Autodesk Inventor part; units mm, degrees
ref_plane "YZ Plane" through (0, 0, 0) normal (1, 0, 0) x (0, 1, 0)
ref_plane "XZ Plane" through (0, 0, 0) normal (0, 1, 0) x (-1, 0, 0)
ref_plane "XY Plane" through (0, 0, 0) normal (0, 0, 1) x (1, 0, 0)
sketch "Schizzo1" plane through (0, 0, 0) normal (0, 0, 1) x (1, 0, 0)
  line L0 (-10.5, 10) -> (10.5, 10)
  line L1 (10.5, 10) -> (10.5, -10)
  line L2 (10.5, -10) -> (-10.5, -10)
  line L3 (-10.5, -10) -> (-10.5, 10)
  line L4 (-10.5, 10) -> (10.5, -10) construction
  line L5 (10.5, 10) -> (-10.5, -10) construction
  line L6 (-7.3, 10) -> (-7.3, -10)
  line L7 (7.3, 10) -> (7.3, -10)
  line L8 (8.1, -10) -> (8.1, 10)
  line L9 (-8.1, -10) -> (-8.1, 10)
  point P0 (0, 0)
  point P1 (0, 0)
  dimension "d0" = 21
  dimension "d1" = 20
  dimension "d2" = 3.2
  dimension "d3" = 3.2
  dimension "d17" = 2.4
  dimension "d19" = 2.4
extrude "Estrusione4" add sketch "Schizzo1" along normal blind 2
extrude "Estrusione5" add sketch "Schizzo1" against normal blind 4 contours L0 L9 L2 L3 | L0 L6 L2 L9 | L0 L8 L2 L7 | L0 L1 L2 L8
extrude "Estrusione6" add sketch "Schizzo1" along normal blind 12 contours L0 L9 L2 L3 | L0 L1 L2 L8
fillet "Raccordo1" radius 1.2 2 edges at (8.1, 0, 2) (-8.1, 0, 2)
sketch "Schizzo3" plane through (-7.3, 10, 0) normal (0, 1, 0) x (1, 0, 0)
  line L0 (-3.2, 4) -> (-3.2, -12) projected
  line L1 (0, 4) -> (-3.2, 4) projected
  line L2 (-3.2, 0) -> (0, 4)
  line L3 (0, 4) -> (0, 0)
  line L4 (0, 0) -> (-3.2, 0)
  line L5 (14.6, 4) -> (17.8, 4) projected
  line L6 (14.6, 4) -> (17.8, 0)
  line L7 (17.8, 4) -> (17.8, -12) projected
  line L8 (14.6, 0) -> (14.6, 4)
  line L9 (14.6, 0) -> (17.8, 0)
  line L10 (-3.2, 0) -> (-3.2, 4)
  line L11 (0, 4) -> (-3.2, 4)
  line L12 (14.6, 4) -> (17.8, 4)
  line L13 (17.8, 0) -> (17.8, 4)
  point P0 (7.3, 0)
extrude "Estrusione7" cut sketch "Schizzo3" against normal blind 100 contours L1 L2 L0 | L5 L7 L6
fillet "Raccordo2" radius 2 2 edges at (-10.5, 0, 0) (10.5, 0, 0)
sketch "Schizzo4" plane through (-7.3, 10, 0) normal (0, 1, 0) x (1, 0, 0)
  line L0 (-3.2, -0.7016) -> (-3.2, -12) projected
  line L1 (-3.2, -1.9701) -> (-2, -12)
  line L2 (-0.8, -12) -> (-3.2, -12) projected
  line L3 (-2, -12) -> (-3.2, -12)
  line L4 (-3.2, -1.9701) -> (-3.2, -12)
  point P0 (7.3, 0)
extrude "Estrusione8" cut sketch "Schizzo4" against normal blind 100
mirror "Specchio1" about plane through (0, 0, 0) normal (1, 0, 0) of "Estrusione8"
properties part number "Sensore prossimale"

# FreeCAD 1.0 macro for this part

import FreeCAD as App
import Part
import Sketcher


def edges_at(feature, points):
    """Names of the edges that pass closest to the given points."""
    edges = feature.Shape.Edges
    near = lambda p: min(range(len(edges)), key=lambda i: edges[i].distToShape(Part.Vertex(*p))[0])
    return sorted({f"Edge{near(p) + 1}" for p in points})

doc = App.newDocument("Part")
body = doc.addObject("PartDesign::Body", "Body")

# Sketch on XY plane
sketch1 = body.newObject("Sketcher::SketchObject", "Sketch")
sketch1.AttachmentSupport = (doc.getObject("XY_Plane"), [""])
sketch1.MapMode = "FlatFace"
sketch1.addGeometry([
    Part.LineSegment(App.Vector(-10.5, 10, 0), App.Vector(-10.5, -10, 0)),
    Part.LineSegment(App.Vector(-10.5, -10, 0), App.Vector(10.5, -10, 0)),
    Part.LineSegment(App.Vector(10.5, -10, 0), App.Vector(10.5, 10, 0)),
    Part.LineSegment(App.Vector(10.5, 10, 0), App.Vector(-10.5, 10, 0)),
], False)
sketch1.addConstraint([
    Sketcher.Constraint("Coincident", 0, 2, 1, 1),
    Sketcher.Constraint("Coincident", 1, 2, 2, 1),
    Sketcher.Constraint("Coincident", 2, 2, 3, 1),
    Sketcher.Constraint("Coincident", 3, 2, 0, 1),
    Sketcher.Constraint("Vertical", 0),
    Sketcher.Constraint("Horizontal", 1),
    Sketcher.Constraint("Vertical", 2),
    Sketcher.Constraint("Horizontal", 3),
    Sketcher.Constraint("Symmetric", 0, 2, 2, 2, -1, 1),
    Sketcher.Constraint("DistanceX", 1, 1, 1, 2, 21.0),
    Sketcher.Constraint("DistanceY", 0, 2, 0, 1, 20.0),
])
pad1 = body.newObject("PartDesign::Pad", "Pad")
pad1.Profile = sketch1
pad1.Length = 2

# Sketch on XY plane
sketch2 = body.newObject("Sketcher::SketchObject", "Sketch001")
sketch2.AttachmentSupport = (doc.getObject("XY_Plane"), [""])
sketch2.MapMode = "FlatFace"
sketch2.addGeometry([
    Part.LineSegment(App.Vector(-10.5, 10, 0), App.Vector(-10.5, -10, 0)),  # 0
    Part.LineSegment(App.Vector(-10.5, -10, 0), App.Vector(-7.3, -10, 0)),  # 1
    Part.LineSegment(App.Vector(-7.3, -10, 0), App.Vector(-7.3, 10, 0)),  # 2
    Part.LineSegment(App.Vector(-7.3, 10, 0), App.Vector(-10.5, 10, 0)),  # 3
    Part.LineSegment(App.Vector(7.3, 10, 0), App.Vector(7.3, -10, 0)),  # 4
    Part.LineSegment(App.Vector(7.3, -10, 0), App.Vector(10.5, -10, 0)),  # 5
    Part.LineSegment(App.Vector(10.5, -10, 0), App.Vector(10.5, 10, 0)),  # 6
    Part.LineSegment(App.Vector(10.5, 10, 0), App.Vector(7.3, 10, 0)),  # 7
], False)
sketch2.addConstraint([
    Sketcher.Constraint("Coincident", 0, 2, 1, 1),
    Sketcher.Constraint("Coincident", 1, 2, 2, 1),
    Sketcher.Constraint("Coincident", 2, 2, 3, 1),
    Sketcher.Constraint("Coincident", 3, 2, 0, 1),
    Sketcher.Constraint("Coincident", 4, 2, 5, 1),
    Sketcher.Constraint("Coincident", 5, 2, 6, 1),
    Sketcher.Constraint("Coincident", 6, 2, 7, 1),
    Sketcher.Constraint("Coincident", 7, 2, 4, 1),
    Sketcher.Constraint("Vertical", 0),
    Sketcher.Constraint("Horizontal", 1),
    Sketcher.Constraint("Vertical", 2),
    Sketcher.Constraint("Horizontal", 3),
    Sketcher.Constraint("Vertical", 4),
    Sketcher.Constraint("Horizontal", 5),
    Sketcher.Constraint("Vertical", 6),
    Sketcher.Constraint("Horizontal", 7),
    Sketcher.Constraint("Symmetric", 2, 2, 4, 2, -1, 1),
    Sketcher.Constraint("Symmetric", 0, 2, 6, 2, -1, 1),
    Sketcher.Constraint("Horizontal", 1, 2, 4, 2),
    Sketcher.Constraint("DistanceY", 0, 2, 0, 1, 20.0),
    Sketcher.Constraint("DistanceX", 1, 1, 1, 2, 3.2),
    Sketcher.Constraint("DistanceX", 0, 2, 5, 2, 21.0),
])
pad2 = body.newObject("PartDesign::Pad", "Pad001")
pad2.Profile = sketch2
pad2.Length = 4
pad2.Reversed = True

# Sketch on XY plane
sketch3 = body.newObject("Sketcher::SketchObject", "Sketch002")
sketch3.AttachmentSupport = (doc.getObject("XY_Plane"), [""])
sketch3.MapMode = "FlatFace"
sketch3.addGeometry([
    Part.LineSegment(App.Vector(-8.1, 10, 0), App.Vector(-10.5, 10, 0)),  # 0
    Part.LineSegment(App.Vector(-10.5, 10, 0), App.Vector(-10.5, -10, 0)),  # 1
    Part.LineSegment(App.Vector(-10.5, -10, 0), App.Vector(-8.1, -10, 0)),  # 2
    Part.LineSegment(App.Vector(-8.1, -10, 0), App.Vector(-8.1, 10, 0)),  # 3
    Part.LineSegment(App.Vector(10.5, 10, 0), App.Vector(8.1, 10, 0)),  # 4
    Part.LineSegment(App.Vector(8.1, 10, 0), App.Vector(8.1, -10, 0)),  # 5
    Part.LineSegment(App.Vector(8.1, -10, 0), App.Vector(10.5, -10, 0)),  # 6
    Part.LineSegment(App.Vector(10.5, -10, 0), App.Vector(10.5, 10, 0)),  # 7
], False)
sketch3.addConstraint([
    Sketcher.Constraint("Coincident", 0, 2, 1, 1),
    Sketcher.Constraint("Coincident", 1, 2, 2, 1),
    Sketcher.Constraint("Coincident", 2, 2, 3, 1),
    Sketcher.Constraint("Coincident", 3, 2, 0, 1),
    Sketcher.Constraint("Coincident", 4, 2, 5, 1),
    Sketcher.Constraint("Coincident", 5, 2, 6, 1),
    Sketcher.Constraint("Coincident", 6, 2, 7, 1),
    Sketcher.Constraint("Coincident", 7, 2, 4, 1),
    Sketcher.Constraint("Horizontal", 0),
    Sketcher.Constraint("Vertical", 1),
    Sketcher.Constraint("Horizontal", 2),
    Sketcher.Constraint("Vertical", 3),
    Sketcher.Constraint("Horizontal", 4),
    Sketcher.Constraint("Vertical", 5),
    Sketcher.Constraint("Horizontal", 6),
    Sketcher.Constraint("Vertical", 7),
    Sketcher.Constraint("Symmetric", 2, 2, 4, 2, -1, 1),
    Sketcher.Constraint("Symmetric", 0, 2, 6, 2, -1, 1),
    Sketcher.Constraint("Horizontal", 3, 2, 4, 2),
    Sketcher.Constraint("DistanceY", 1, 2, 1, 1, 20.0),
    Sketcher.Constraint("DistanceX", 0, 2, 0, 1, 2.4),
    Sketcher.Constraint("DistanceX", 1, 2, 6, 2, 21.0),
])
pad3 = body.newObject("PartDesign::Pad", "Pad002")
pad3.Profile = sketch3
pad3.Length = 12
doc.recompute()

fillet = body.newObject("PartDesign::Fillet", "Fillet")
fillet.Base = (pad3, edges_at(pad3, [(8.1, 0, 2), (-8.1, 0, 2)]))
fillet.Radius = 1.2

# Sketch on XZ plane
sketch4 = body.newObject("Sketcher::SketchObject", "Sketch003")
sketch4.AttachmentSupport = (doc.getObject("XZ_Plane"), [""])
sketch4.MapMode = "FlatFace"
sketch4.AttachmentOffset = App.Placement(App.Vector(0, 0, -10), App.Rotation())
sketch4.addGeometry([
    Part.LineSegment(App.Vector(-7.3, -4, 0), App.Vector(-10.5, -4, 0)),  # 0
    Part.LineSegment(App.Vector(-10.5, -4, 0), App.Vector(-10.5, 0, 0)),  # 1
    Part.LineSegment(App.Vector(-10.5, 0, 0), App.Vector(-7.3, -4, 0)),  # 2
    Part.LineSegment(App.Vector(10.5, -4, 0), App.Vector(7.3, -4, 0)),  # 3
    Part.LineSegment(App.Vector(7.3, -4, 0), App.Vector(10.5, 0, 0)),  # 4
    Part.LineSegment(App.Vector(10.5, 0, 0), App.Vector(10.5, -4, 0)),  # 5
], False)
sketch4.addConstraint([
    Sketcher.Constraint("Coincident", 0, 2, 1, 1),
    Sketcher.Constraint("Coincident", 1, 2, 2, 1),
    Sketcher.Constraint("Coincident", 2, 2, 0, 1),
    Sketcher.Constraint("Coincident", 3, 2, 4, 1),
    Sketcher.Constraint("Coincident", 4, 2, 5, 1),
    Sketcher.Constraint("Coincident", 5, 2, 3, 1),
    Sketcher.Constraint("Horizontal", 0),
    Sketcher.Constraint("Vertical", 1),
    Sketcher.Constraint("Horizontal", 3),
    Sketcher.Constraint("Vertical", 5),
    Sketcher.Constraint("Symmetric", 1, 2, 4, 2, -1, 1),
    Sketcher.Constraint("Symmetric", 2, 2, 3, 2, -2),
    Sketcher.Constraint("PointOnObject", 1, 2, -1),
    Sketcher.Constraint("DistanceY", 1, 1, 1, 2, 4.0),
    Sketcher.Constraint("DistanceX", 0, 2, 0, 1, 3.2),
    Sketcher.Constraint("DistanceX", 1, 2, 4, 2, 21.0),
])
pocket1 = body.newObject("PartDesign::Pocket", "Pocket")
pocket1.Profile = sketch4
pocket1.Length = 100
pocket1.Reversed = True
doc.recompute()

fillet2 = body.newObject("PartDesign::Fillet", "Fillet001")
fillet2.Base = (pocket1, edges_at(pocket1, [(-10.5, 0, 0), (10.5, 0, 0)]))
fillet2.Radius = 2

# Sketch on XZ plane
sketch5 = body.newObject("Sketcher::SketchObject", "Sketch004")
sketch5.AttachmentSupport = (doc.getObject("XZ_Plane"), [""])
sketch5.MapMode = "FlatFace"
sketch5.AttachmentOffset = App.Placement(App.Vector(0, 0, -10), App.Rotation())
sketch5.addGeometry([
    Part.LineSegment(App.Vector(-9.3, 12, 0), App.Vector(-10.5, 1.9701, 0)),
    Part.LineSegment(App.Vector(-10.5, 1.9701, 0), App.Vector(-10.5, 12, 0)),
    Part.LineSegment(App.Vector(-10.5, 12, 0), App.Vector(-9.3, 12, 0)),
], False)
sketch5.addConstraint([
    Sketcher.Constraint("Coincident", 0, 2, 1, 1),
    Sketcher.Constraint("Coincident", 1, 2, 2, 1),
    Sketcher.Constraint("Coincident", 2, 2, 0, 1),
    Sketcher.Constraint("Vertical", 1),
    Sketcher.Constraint("Horizontal", 2),
    Sketcher.Constraint("DistanceX", 2, 1, 2, 2, 1.2),
    Sketcher.Constraint("DistanceY", -1, 1, 1, 2, 12.0),
    Sketcher.Constraint("DistanceY", 1, 1, 1, 2, 10.03),
    Sketcher.Constraint("DistanceX", 0, 2, -1, 1, 10.5),
])
pocket2 = body.newObject("PartDesign::Pocket", "Pocket001")
pocket2.Profile = sketch5
pocket2.Length = 100
pocket2.Reversed = True
doc.recompute()

mirrored = body.newObject("PartDesign::Mirrored", "Mirrored")
mirrored.Originals = [pocket2]
mirrored.MirrorPlane = (doc.getObject("YZ_Plane"), [""])
body.Tip = mirrored

doc.recompute()
